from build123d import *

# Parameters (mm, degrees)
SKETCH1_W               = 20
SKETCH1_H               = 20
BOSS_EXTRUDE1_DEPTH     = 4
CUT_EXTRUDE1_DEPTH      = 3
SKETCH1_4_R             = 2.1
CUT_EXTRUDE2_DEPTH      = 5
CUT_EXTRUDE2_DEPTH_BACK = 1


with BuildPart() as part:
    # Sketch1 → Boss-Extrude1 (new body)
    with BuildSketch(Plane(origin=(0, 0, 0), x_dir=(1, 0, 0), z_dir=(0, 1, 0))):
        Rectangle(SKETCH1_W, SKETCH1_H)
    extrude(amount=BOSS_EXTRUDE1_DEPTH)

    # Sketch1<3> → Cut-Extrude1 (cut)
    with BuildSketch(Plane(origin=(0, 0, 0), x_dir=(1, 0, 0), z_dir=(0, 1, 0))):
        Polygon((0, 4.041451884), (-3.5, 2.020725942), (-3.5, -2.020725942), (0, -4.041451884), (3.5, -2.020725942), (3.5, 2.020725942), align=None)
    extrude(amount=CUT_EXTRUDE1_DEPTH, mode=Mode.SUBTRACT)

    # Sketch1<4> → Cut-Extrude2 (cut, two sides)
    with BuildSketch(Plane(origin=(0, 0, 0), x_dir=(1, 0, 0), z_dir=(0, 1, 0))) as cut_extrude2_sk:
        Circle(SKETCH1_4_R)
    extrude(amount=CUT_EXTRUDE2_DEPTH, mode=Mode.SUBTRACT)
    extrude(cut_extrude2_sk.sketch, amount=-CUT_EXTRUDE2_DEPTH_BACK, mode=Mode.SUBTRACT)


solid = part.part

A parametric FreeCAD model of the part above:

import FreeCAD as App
import Part
import Sketcher

V = App.Vector
Q = App.Units.Quantity

doc = App.newDocument("Part")
body = doc.addObject("PartDesign::Body", "Body")

# Sketch on XZ plane
sketch1 = body.newObject("Sketcher::SketchObject", "Sketch")
sketch1.AttachmentSupport = (doc.getObject("XZ_Plane"), [""])
sketch1.MapMode = "FlatFace"
sketch1.addGeometry([
    Part.LineSegment(V(-10, -10, 0), V(-10, 10, 0)),
    Part.LineSegment(V(-10, 10, 0), V(10, 10, 0)),
    Part.LineSegment(V(10, 10, 0), V(10, -10, 0)),
    Part.LineSegment(V(10, -10, 0), V(-10, -10, 0)),
], False)
sketch1.addConstraint([
    Sketcher.Constraint("Coincident", 0, 2, 1, 1),
    Sketcher.Constraint("Coincident", 1, 2, 2, 1),
    Sketcher.Constraint("Coincident", 2, 2, 3, 1),
    Sketcher.Constraint("Coincident", 3, 2, 0, 1),
    Sketcher.Constraint("Vertical", 0),
    Sketcher.Constraint("Horizontal", 1),
    Sketcher.Constraint("Vertical", 2),
    Sketcher.Constraint("Horizontal", 3),
    Sketcher.Constraint("Symmetric", 0, 2, 2, 2, -1, 1),
    Sketcher.Constraint("Equal", 3, 0),
    Sketcher.Constraint("DistanceX", 1, 1, 1, 2, 20.0),
])
pad1 = body.newObject("PartDesign::Pad", "Pad")
pad1.Profile = sketch1
pad1.Length = 4
pad1.Reversed = True

# Sketch on XZ plane
sketch2 = body.newObject("Sketcher::SketchObject", "Sketch001")
sketch2.AttachmentSupport = (doc.getObject("XZ_Plane"), [""])
sketch2.MapMode = "FlatFace"
sketch2.addGeometry([
    Part.LineSegment(V(0, -4, 0), V(-3.5, -2, 0)),  # 0
    Part.LineSegment(V(-3.5, -2, 0), V(-3.5, 2, 0)),  # 1
    Part.LineSegment(V(-3.5, 2, 0), V(0, 4, 0)),  # 2
    Part.LineSegment(V(0, 4, 0), V(3.5, 2, 0)),  # 3
    Part.LineSegment(V(3.5, 2, 0), V(3.5, -2, 0)),  # 4
    Part.LineSegment(V(3.5, -2, 0), V(0, -4, 0)),  # 5
], False)
sketch2.addConstraint([
    Sketcher.Constraint("Coincident", 0, 2, 1, 1),
    Sketcher.Constraint("Coincident", 1, 2, 2, 1),
    Sketcher.Constraint("Coincident", 2, 2, 3, 1),
    Sketcher.Constraint("Coincident", 3, 2, 4, 1),
    Sketcher.Constraint("Coincident", 4, 2, 5, 1),
    Sketcher.Constraint("Coincident", 5, 2, 0, 1),
    Sketcher.Constraint("Vertical", 1),
    Sketcher.Constraint("Vertical", 4),
    Sketcher.Constraint("Symmetric", 0, 2, 3, 2, -1, 1),
    Sketcher.Constraint("Symmetric", 2, 2, 5, 2, -1, 1),
    Sketcher.Constraint("PointOnObject", 2, 2, -2),
    Sketcher.Constraint("Parallel", 2, 5),
    Sketcher.Constraint("Horizontal", 1, 2, 3, 2),
    Sketcher.Constraint("Angle", 0, Q("150 deg")),
    Sketcher.Constraint("DistanceX", 1, 2, 3, 2, 7.0),
    Sketcher.Constraint("DistanceY", 1, 1, 1, 2, 4.041452),
])
pocket1 = body.newObject("PartDesign::Pocket", "Pocket")
pocket1.Profile = sketch2
pocket1.Length = 3

# Sketch on XZ plane
sketch3 = body.newObject("Sketcher::SketchObject", "Sketch002")
sketch3.AttachmentSupport = (doc.getObject("XZ_Plane"), [""])
sketch3.MapMode = "FlatFace"
sketch3.addGeometry(Part.Circle(V(0, 0, 0), V(0, 0, 1), 2.1), False)
sketch3.addConstraint([
    Sketcher.Constraint("Coincident", 0, 3, -1, 1),
    Sketcher.Constraint("Diameter", 0, 4.2),
])
pocket2 = body.newObject("PartDesign::Pocket", "Pocket001")
pocket2.Profile = sketch3
pocket2.Type = "ThroughAll"
pocket2.Midplane = True

doc.recompute()
